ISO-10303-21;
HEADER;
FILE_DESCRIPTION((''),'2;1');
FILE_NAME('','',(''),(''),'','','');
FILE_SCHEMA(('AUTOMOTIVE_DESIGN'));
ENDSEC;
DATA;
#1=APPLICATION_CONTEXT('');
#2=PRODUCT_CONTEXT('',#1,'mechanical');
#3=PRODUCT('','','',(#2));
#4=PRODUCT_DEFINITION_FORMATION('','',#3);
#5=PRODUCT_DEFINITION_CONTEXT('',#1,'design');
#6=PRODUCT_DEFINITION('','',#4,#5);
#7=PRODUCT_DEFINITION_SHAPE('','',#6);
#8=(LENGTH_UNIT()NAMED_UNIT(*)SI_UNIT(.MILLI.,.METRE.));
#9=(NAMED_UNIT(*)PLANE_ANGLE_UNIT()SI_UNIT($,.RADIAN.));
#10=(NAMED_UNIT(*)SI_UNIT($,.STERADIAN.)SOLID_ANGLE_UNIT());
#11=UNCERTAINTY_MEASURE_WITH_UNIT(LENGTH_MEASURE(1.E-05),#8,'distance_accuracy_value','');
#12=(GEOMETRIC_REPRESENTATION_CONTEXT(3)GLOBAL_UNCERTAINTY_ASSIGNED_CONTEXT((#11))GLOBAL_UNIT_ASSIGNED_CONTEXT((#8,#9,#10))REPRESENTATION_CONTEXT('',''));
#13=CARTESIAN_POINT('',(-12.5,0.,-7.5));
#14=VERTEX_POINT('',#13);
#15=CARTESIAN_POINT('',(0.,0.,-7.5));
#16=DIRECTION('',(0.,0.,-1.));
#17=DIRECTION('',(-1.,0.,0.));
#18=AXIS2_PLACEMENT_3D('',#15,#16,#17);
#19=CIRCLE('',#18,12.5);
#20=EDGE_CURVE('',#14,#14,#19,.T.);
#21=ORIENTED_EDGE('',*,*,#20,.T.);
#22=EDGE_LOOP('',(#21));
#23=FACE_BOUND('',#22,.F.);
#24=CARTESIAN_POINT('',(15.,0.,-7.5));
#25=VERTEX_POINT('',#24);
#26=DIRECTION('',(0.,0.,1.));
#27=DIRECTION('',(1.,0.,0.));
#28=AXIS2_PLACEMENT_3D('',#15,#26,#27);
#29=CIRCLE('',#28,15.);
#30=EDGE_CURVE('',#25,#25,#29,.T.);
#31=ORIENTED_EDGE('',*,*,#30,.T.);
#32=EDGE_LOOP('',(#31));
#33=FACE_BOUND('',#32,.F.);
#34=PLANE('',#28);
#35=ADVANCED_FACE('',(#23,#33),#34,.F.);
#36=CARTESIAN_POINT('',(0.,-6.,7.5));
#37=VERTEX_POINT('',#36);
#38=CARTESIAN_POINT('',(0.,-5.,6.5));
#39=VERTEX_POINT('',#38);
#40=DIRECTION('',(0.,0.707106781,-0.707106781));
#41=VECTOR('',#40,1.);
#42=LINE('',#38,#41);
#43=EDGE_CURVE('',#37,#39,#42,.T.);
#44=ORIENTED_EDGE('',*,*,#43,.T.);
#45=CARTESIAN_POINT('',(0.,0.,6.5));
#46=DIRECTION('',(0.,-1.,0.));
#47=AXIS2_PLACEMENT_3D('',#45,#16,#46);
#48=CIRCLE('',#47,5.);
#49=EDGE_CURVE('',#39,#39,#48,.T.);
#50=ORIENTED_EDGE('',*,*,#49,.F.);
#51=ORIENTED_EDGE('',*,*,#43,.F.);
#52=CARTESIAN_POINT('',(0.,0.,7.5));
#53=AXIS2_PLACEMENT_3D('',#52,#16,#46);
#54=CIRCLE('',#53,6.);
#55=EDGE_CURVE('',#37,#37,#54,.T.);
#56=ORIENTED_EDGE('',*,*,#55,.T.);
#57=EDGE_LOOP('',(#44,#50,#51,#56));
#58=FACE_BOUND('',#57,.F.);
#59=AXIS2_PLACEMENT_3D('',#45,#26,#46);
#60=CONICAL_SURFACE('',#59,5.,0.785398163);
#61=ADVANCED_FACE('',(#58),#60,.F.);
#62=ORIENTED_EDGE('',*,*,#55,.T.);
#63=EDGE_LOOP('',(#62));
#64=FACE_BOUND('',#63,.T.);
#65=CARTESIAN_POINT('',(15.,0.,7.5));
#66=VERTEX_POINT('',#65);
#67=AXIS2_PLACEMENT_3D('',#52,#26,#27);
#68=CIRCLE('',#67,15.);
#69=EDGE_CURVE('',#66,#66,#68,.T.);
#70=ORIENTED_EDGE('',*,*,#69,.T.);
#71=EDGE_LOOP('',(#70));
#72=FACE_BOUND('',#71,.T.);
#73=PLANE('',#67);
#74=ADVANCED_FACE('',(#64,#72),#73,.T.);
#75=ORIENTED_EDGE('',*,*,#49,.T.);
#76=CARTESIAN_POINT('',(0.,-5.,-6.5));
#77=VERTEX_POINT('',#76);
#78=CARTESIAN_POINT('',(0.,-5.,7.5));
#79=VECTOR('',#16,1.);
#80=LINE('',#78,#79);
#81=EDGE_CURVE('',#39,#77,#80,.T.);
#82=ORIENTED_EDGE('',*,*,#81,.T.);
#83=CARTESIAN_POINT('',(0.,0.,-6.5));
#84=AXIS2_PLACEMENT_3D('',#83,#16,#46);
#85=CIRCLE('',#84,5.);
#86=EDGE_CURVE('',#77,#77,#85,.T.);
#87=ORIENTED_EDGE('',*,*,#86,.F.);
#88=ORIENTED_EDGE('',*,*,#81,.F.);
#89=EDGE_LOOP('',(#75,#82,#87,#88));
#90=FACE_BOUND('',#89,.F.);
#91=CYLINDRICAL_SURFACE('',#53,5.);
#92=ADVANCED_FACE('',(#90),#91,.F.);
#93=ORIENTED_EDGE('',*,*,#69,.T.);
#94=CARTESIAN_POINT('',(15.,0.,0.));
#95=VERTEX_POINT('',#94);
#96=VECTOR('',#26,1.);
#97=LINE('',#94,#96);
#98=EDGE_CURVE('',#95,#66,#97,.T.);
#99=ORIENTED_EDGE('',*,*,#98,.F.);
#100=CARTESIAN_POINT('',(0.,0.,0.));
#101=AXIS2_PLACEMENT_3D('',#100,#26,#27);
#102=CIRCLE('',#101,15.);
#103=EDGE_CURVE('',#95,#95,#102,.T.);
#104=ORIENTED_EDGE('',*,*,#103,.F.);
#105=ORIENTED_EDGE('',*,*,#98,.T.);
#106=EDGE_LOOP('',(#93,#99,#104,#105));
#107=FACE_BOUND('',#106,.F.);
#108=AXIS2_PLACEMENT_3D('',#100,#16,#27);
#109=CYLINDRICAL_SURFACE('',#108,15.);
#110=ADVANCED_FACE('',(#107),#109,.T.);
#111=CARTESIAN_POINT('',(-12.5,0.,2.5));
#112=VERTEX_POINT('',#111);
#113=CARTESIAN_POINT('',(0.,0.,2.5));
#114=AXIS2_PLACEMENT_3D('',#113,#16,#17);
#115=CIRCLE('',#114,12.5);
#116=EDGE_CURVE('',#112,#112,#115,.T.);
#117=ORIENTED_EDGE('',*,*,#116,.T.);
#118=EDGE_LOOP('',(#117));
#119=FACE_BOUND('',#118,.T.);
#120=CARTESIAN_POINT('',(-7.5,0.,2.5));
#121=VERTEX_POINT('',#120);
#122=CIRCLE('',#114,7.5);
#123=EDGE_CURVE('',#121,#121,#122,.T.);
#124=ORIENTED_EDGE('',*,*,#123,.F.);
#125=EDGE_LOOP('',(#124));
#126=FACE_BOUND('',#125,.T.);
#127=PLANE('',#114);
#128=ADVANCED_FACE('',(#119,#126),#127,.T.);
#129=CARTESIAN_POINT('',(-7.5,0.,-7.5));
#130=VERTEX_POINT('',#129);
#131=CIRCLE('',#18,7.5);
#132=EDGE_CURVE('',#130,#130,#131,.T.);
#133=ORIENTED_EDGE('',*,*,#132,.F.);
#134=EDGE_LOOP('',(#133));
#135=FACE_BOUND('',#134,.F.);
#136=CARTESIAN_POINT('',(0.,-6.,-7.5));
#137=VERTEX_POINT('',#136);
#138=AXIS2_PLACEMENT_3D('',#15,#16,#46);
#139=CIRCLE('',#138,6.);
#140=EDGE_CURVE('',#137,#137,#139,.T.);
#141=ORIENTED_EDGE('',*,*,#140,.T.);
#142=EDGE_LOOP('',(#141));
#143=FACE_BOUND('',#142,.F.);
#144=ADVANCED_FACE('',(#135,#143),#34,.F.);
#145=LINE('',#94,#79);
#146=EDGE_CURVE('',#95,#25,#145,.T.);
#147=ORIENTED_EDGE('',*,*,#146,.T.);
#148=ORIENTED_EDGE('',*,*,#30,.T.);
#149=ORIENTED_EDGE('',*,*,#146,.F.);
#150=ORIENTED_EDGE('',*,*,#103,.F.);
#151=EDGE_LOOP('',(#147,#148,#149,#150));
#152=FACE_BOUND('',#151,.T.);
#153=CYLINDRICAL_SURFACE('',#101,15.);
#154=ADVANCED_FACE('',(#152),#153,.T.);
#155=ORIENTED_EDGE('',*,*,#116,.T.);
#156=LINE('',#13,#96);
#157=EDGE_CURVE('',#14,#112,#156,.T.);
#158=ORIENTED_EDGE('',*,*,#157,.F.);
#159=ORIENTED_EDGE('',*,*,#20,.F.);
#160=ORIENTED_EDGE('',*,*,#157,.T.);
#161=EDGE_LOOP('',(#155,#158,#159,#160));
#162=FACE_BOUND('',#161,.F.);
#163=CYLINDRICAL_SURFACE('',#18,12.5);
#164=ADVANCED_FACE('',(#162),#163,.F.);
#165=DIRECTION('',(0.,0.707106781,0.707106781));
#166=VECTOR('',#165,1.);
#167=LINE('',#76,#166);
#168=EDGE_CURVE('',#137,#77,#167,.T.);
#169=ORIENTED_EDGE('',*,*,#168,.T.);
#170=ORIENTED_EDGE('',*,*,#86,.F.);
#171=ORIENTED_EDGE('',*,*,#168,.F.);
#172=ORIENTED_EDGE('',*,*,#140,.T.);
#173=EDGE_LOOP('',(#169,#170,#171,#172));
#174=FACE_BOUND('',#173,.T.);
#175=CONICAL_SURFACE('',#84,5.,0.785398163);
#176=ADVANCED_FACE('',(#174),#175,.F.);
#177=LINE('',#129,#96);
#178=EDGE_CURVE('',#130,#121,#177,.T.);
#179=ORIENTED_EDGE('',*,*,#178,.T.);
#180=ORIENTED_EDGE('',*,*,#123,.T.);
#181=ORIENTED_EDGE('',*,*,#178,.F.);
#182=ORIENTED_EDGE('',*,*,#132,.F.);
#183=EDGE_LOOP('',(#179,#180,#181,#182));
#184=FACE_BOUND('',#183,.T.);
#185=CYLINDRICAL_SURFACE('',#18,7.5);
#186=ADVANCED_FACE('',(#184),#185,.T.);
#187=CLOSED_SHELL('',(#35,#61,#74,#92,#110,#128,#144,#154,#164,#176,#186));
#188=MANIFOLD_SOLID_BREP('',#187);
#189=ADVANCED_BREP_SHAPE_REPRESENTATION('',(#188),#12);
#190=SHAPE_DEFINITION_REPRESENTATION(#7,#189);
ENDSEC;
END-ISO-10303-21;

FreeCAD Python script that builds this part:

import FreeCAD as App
import Part
import Sketcher
Q = App.Units.Quantity


def edges_at(feature, points):
    """Names of the edges that pass closest to the given points."""
    edges = feature.Shape.Edges
    near = lambda p: min(range(len(edges)), key=lambda i: edges[i].distToShape(Part.Vertex(*p))[0])
    return sorted({f"Edge{near(p) + 1}" for p in points})

doc = App.newDocument("Part")
params = doc.addObject("Spreadsheet::Sheet", "Params")
for row, (alias, value) in enumerate([
    ("sketch1_diameter", "30 mm"),
    ("pad1_length", "15 mm"),
    ("sketch2_diameter", "10 mm"),
    ("hole_diameter", "10 mm"),
    ("chamfer_size", "1 mm"),
    ("sketch3_diameter", "25 mm"),
    ("sketch3_diameter2", "15 mm"),
    ("pocket1_length", "10 mm"),
], start=1):
    params.set(f"A{row}", alias)
    params.set(f"B{row}", "=" + value)
    params.setAlias(f"B{row}", alias)

body = doc.addObject("PartDesign::Body", "Body")

# Sketch on XY plane
sketch1 = doc.addObject("Sketcher::SketchObject", "Sketch")
body.addObject(sketch1)
sketch1.AttachmentSupport = (doc.XY_Plane, [""])
sketch1.MapMode = "FlatFace"
sketch1.addGeometry(Part.Circle(App.Vector(0, 0, 0), App.Vector(0, 0, 1), 15), False)
sketch1.addConstraint(Sketcher.Constraint("Coincident", 0, 3, -1, 1))
sketch1.addConstraint(Sketcher.Constraint("Diameter", 0, Q("30 mm")))
sketch1.setExpression("Constraints[1]", "Params.sketch1_diameter")
pad1 = doc.addObject("PartDesign::Pad", "Pad")
body.addObject(pad1)
pad1.Profile = sketch1
pad1.setExpression("Length", "Params.pad1_length")
pad1.Midplane = True

# Sketch on XY plane
sketch2 = doc.addObject("Sketcher::SketchObject", "Sketch001")
body.addObject(sketch2)
sketch2.AttachmentSupport = (doc.XY_Plane, [""])
sketch2.MapMode = "FlatFace"
sketch2.AttachmentOffset = App.Placement(App.Vector(0, 0, 7.5), App.Rotation())
sketch2.addGeometry(Part.Circle(App.Vector(0, 0, 0), App.Vector(0, 0, 1), 5), False)
sketch2.addConstraint(Sketcher.Constraint("Coincident", 0, 3, -1, 1))
sketch2.addConstraint(Sketcher.Constraint("Diameter", 0, Q("10 mm")))
sketch2.setExpression("Constraints[1]", "Params.sketch2_diameter")
doc.recompute()
hole = doc.addObject("PartDesign::Hole", "Hole")
body.addObject(hole)
hole.Profile = sketch2
hole.ThreadType = "None"
hole.setExpression("Diameter", "Params.hole_diameter")
hole.DepthType = "ThroughAll"
doc.recompute()

chamfer = doc.addObject("PartDesign::Chamfer", "Chamfer")
body.addObject(chamfer)
chamfer.Base = (hole, edges_at(hole, [(0, 5, 7.5), (0, 5, -7.5)]))
chamfer.setExpression("Size", "Params.chamfer_size")

# Sketch on XY plane
sketch3 = doc.addObject("Sketcher::SketchObject", "Sketch002")
body.addObject(sketch3)
sketch3.AttachmentSupport = (doc.XY_Plane, [""])
sketch3.MapMode = "FlatFace"
sketch3.AttachmentOffset = App.Placement(App.Vector(0, 0, -7.5), App.Rotation())
sketch3.addGeometry(Part.Circle(App.Vector(0, 0, 0), App.Vector(0, 0, 1), 12.5), False)
sketch3.addGeometry(Part.Circle(App.Vector(0, 0, 0), App.Vector(0, 0, 1), 7.5), False)
sketch3.addConstraint(Sketcher.Constraint("Coincident", 0, 3, -1, 1))
sketch3.addConstraint(Sketcher.Constraint("Coincident", 1, 3, -1, 1))
sketch3.addConstraint(Sketcher.Constraint("Diameter", 0, Q("25 mm")))
sketch3.addConstraint(Sketcher.Constraint("Diameter", 1, Q("15 mm")))
sketch3.setExpression("Constraints[2]", "Params.sketch3_diameter")
sketch3.setExpression("Constraints[3]", "Params.sketch3_diameter2")
pocket1 = doc.addObject("PartDesign::Pocket", "Pocket")
body.addObject(pocket1)
pocket1.Profile = sketch3
pocket1.setExpression("Length", "Params.pocket1_length")
pocket1.Reversed = True

doc.recompute()
